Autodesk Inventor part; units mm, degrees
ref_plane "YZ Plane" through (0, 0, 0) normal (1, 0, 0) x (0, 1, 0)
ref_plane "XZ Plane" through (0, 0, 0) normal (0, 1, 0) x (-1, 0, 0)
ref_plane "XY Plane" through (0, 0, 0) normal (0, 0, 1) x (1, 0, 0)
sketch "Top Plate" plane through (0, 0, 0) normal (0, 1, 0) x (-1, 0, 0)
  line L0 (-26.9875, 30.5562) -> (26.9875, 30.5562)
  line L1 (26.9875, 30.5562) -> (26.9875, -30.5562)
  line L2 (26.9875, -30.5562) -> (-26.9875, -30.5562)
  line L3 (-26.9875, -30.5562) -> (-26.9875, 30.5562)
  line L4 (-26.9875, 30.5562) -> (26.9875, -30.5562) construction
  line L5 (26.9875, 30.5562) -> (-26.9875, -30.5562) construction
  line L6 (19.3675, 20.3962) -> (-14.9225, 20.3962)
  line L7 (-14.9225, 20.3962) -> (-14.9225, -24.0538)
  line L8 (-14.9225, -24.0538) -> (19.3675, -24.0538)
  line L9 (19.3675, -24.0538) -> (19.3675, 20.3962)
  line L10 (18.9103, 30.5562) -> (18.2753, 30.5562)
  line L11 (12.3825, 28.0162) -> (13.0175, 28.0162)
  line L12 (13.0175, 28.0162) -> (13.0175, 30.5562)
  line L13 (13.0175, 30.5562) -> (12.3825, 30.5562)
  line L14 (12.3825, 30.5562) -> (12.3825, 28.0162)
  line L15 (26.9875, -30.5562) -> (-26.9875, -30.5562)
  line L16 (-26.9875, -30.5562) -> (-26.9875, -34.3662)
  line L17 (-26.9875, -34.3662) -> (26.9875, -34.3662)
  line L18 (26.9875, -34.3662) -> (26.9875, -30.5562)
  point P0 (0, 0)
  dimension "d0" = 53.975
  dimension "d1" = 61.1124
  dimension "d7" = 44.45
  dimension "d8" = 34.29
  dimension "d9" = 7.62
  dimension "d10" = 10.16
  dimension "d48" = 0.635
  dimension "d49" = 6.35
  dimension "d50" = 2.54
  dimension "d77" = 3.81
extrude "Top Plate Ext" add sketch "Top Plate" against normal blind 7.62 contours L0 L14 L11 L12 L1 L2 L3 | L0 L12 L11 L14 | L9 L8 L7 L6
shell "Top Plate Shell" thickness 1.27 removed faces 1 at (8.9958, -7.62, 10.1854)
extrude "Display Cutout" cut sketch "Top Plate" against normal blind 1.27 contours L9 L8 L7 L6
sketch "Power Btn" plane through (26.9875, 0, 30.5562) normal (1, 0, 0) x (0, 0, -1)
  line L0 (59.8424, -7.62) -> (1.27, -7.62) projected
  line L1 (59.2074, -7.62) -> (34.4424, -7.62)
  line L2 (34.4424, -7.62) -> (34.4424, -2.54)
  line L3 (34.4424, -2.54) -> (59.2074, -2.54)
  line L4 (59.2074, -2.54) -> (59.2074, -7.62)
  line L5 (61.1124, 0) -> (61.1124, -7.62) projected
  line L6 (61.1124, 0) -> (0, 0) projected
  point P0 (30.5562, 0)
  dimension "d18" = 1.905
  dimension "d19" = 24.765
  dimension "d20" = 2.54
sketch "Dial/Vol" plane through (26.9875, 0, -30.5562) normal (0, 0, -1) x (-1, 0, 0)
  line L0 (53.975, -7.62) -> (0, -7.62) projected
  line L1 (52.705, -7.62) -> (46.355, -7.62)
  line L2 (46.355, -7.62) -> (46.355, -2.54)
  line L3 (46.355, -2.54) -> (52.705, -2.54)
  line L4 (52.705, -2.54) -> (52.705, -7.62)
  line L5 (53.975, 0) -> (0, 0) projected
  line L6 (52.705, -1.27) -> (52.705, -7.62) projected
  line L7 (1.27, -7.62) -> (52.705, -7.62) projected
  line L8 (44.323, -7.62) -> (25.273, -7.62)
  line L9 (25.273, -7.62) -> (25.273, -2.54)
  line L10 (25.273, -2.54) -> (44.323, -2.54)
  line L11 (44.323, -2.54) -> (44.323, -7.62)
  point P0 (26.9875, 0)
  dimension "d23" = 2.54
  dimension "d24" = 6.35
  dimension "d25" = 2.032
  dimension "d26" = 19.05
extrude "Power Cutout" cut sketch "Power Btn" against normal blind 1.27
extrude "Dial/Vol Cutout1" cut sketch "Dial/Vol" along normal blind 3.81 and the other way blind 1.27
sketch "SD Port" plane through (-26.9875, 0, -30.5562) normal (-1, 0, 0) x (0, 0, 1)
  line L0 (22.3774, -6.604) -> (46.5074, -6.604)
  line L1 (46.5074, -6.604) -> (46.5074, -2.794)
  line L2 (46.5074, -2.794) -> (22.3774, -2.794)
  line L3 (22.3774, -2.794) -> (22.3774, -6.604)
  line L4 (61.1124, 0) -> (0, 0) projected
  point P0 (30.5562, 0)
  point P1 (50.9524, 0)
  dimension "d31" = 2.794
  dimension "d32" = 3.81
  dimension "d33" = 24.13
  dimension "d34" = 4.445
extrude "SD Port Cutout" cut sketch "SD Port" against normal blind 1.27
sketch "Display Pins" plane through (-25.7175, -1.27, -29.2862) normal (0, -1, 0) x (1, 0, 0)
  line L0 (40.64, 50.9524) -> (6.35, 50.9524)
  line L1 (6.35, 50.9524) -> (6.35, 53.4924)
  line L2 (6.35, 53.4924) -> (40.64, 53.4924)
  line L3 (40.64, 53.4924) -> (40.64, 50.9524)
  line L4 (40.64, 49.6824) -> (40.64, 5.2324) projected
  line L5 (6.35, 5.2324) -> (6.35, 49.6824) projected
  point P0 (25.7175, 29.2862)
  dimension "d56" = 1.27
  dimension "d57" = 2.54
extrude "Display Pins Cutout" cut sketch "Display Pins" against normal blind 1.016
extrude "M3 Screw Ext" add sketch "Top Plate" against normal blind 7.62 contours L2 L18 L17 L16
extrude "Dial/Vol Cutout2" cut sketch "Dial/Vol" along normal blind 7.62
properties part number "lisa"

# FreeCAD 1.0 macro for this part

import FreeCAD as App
import Part
import Sketcher
from FreeCAD import Vector
Q = App.Units.Quantity


def faces_at(feature, points):
    """Names of the faces that lie closest to the given points."""
    faces = feature.Shape.Faces
    near = lambda p: min(range(len(faces)), key=lambda i: faces[i].distToShape(Part.Vertex(*p))[0])
    return sorted({f"Face{near(p) + 1}" for p in points})


def add_polygon(sketch, points):
    """Adds a closed chain of lines whose ends are joined by coincident constraints."""
    first, n = sketch.GeometryCount, len(points)
    for a, b in zip(points, points[1:] + points[:1]):
        sketch.addGeometry(Part.LineSegment(App.Vector(*a, 0), App.Vector(*b, 0)), False)
    for i in range(n):
        sketch.addConstraint(Sketcher.Constraint("Coincident", first + i, 2, first + (i + 1) % n, 1))

doc = App.newDocument("Part")
body = doc.addObject("PartDesign::Body", "Body")

sketch1 = body.newObject("Sketcher::SketchObject", "Sketch")
sketch1.AttachmentSupport = (doc.getObject("XZ_Plane"), [""])
sketch1.MapMode = "FlatFace"
add_polygon(sketch1, [(27, 31), (27, -31), (-27, -31), (-27, 31)])
sketch1.addConstraint(Sketcher.Constraint("Vertical", 0))
sketch1.addConstraint(Sketcher.Constraint("Horizontal", 1))
sketch1.addConstraint(Sketcher.Constraint("Vertical", 2))
sketch1.addConstraint(Sketcher.Constraint("Horizontal", 3))
sketch1.addConstraint(Sketcher.Constraint("Symmetric", 0, 2, 2, 2, -1, 1))
sketch1.addConstraint(Sketcher.Constraint("DistanceX", 1, 2, 1, 1, Q("2.125 in")))
sketch1.addConstraint(Sketcher.Constraint("DistanceY", 0, 2, 0, 1, Q("2.406 in")))
pad1 = body.newObject("PartDesign::Pad", "Pad")
pad1.Profile = sketch1
pad1.Length = Q("0.3 in")
doc.recompute()

thickness = body.newObject("PartDesign::Thickness", "Thickness")
thickness.Base = (pad1, faces_at(pad1, [(8.996, -7.62, 10.185)]))
thickness.Value = Q("0.05 in")
thickness.Reversed = True
thickness.Join = "Intersection"

sketch2 = body.newObject("Sketcher::SketchObject", "Sketch001")
sketch2.AttachmentSupport = (doc.getObject("XZ_Plane"), [""])
sketch2.MapMode = "FlatFace"
add_polygon(sketch2, [(-19, -24), (-19, 20), (15, 20), (15, -24)])
sketch2.addConstraint(Sketcher.Constraint("Vertical", 0))
sketch2.addConstraint(Sketcher.Constraint("Horizontal", 1))
sketch2.addConstraint(Sketcher.Constraint("Vertical", 2))
sketch2.addConstraint(Sketcher.Constraint("Horizontal", 3))
sketch2.addConstraint(Sketcher.Constraint("DistanceX", 1, 1, 1, 2, Q("1.35 in")))
sketch2.addConstraint(Sketcher.Constraint("DistanceY", 0, 1, 0, 2, Q("1.75 in")))
sketch2.addConstraint(Sketcher.Constraint("DistanceY", -1, 1, 0, 2, Q("0.803 in")))
sketch2.addConstraint(Sketcher.Constraint("DistanceX", 0, 2, -1, 1, Q("0.7625 in")))
pocket1 = body.newObject("PartDesign::Pocket", "Pocket")
pocket1.Profile = sketch2
pocket1.Length = Q("0.05 in")
pocket1.Reversed = True

sketch3 = body.newObject("Sketcher::SketchObject", "Sketch002")
sketch3.AttachmentSupport = (doc.getObject("YZ_Plane"), [""])
sketch3.MapMode = "FlatFace"
sketch3.AttachmentOffset = App.Placement(Vector(0, 0, 1.0625 * 25.4), App.Rotation())
add_polygon(sketch3, [(-8, -4), (-8, -29), (-3, -29), (-3, -4)])
sketch3.addConstraint(Sketcher.Constraint("Vertical", 0))
sketch3.addConstraint(Sketcher.Constraint("Horizontal", 1))
sketch3.addConstraint(Sketcher.Constraint("Vertical", 2))
sketch3.addConstraint(Sketcher.Constraint("Horizontal", 3))
sketch3.addConstraint(Sketcher.Constraint("DistanceX", 1, 2, -1, 1, Q("0.1 in")))
sketch3.addConstraint(Sketcher.Constraint("DistanceY", 0, 2, 0, 1, Q("0.975 in")))
sketch3.addConstraint(Sketcher.Constraint("DistanceX", 1, 1, 1, 2, Q("0.2 in")))
sketch3.addConstraint(Sketcher.Constraint("DistanceY", 0, 2, -1, 1, Q("1.128 in")))
pocket2 = body.newObject("PartDesign::Pocket", "Pocket001")
pocket2.Profile = sketch3
pocket2.Length = Q("0.05 in")

sketch4 = body.newObject("Sketcher::SketchObject", "Sketch003")
sketch4.AttachmentSupport = (doc.getObject("XY_Plane"), [""])
sketch4.MapMode = "FlatFace"
sketch4.AttachmentOffset = App.Placement(Vector(0, 0, -1.203 * 25.4), App.Rotation())
add_polygon(sketch4, [(2, -8), (-17, -8), (-17, -3), (2, -3)])
add_polygon(sketch4, [(-19, -8), (-26, -8), (-26, -3), (-19, -3)])
sketch4.addConstraint(Sketcher.Constraint("Horizontal", 0))
sketch4.addConstraint(Sketcher.Constraint("Vertical", 1))
sketch4.addConstraint(Sketcher.Constraint("Horizontal", 2))
sketch4.addConstraint(Sketcher.Constraint("Vertical", 3))
sketch4.addConstraint(Sketcher.Constraint("Horizontal", 4))
sketch4.addConstraint(Sketcher.Constraint("Vertical", 5))
sketch4.addConstraint(Sketcher.Constraint("Horizontal", 6))
sketch4.addConstraint(Sketcher.Constraint("Vertical", 7))
sketch4.addConstraint(Sketcher.Constraint("Horizontal", 3, 2, 4, 2))
sketch4.addConstraint(Sketcher.Constraint("Horizontal", 2, 2, 5, 2))
sketch4.addConstraint(Sketcher.Constraint("DistanceX", 0, 2, 0, 1, Q("0.75 in")))
sketch4.addConstraint(Sketcher.Constraint("DistanceX", 4, 2, 4, 1, Q("0.25 in")))
sketch4.addConstraint(Sketcher.Constraint("DistanceY", 1, 2, -1, 1, Q("0.1 in")))
sketch4.addConstraint(Sketcher.Constraint("DistanceX", 6, 2, 1, 2, Q("0.08 in")))
sketch4.addConstraint(Sketcher.Constraint("DistanceY", 1, 1, 1, 2, Q("0.2 in")))
sketch4.addConstraint(Sketcher.Constraint("DistanceX", 0, 2, -1, 1, Q("0.6825 in")))
pocket3 = body.newObject("PartDesign::Pocket", "Pocket002")
pocket3.Profile = sketch4
pocket3.Type = "TwoLengths"
pocket3.Length = Q("0.15 in")
pocket3.Length2 = Q("0.05 in")

sketch5 = body.newObject("Sketcher::SketchObject", "Sketch004")
sketch5.AttachmentSupport = (doc.getObject("YZ_Plane"), [""])
sketch5.MapMode = "FlatFace"
sketch5.AttachmentOffset = App.Placement(Vector(0, 0, -1.0625 * 25.4), App.Rotation())
add_polygon(sketch5, [(-2.8, -8.2), (-6.6, -8.2), (-6.6, 16), (-2.8, 16)])
sketch5.addConstraint(Sketcher.Constraint("Horizontal", 0))
sketch5.addConstraint(Sketcher.Constraint("Vertical", 1))
sketch5.addConstraint(Sketcher.Constraint("Horizontal", 2))
sketch5.addConstraint(Sketcher.Constraint("Vertical", 3))
sketch5.addConstraint(Sketcher.Constraint("DistanceX", 0, 2, 0, 1, Q("0.15 in")))
sketch5.addConstraint(Sketcher.Constraint("DistanceY", 1, 1, 1, 2, Q("0.95 in")))
sketch5.addConstraint(Sketcher.Constraint("DistanceX", 2, 2, -1, 1, Q("0.11 in")))
sketch5.addConstraint(Sketcher.Constraint("DistanceY", 0, 2, -1, 1, Q("0.322 in")))
pocket4 = body.newObject("PartDesign::Pocket", "Pocket003")
pocket4.Profile = sketch5
pocket4.Length = Q("0.05 in")
pocket4.Reversed = True

sketch6 = body.newObject("Sketcher::SketchObject", "Sketch005")
sketch6.AttachmentSupport = (doc.getObject("XZ_Plane"), [""])
sketch6.MapMode = "FlatFace"
sketch6.AttachmentOffset = App.Placement(Vector(0, 0, 0.05 * 25.4), App.Rotation())
add_polygon(sketch6, [(-19.4, 21.7), (14.9, 21.7), (14.9, 24.2), (-19.4, 24.2)])
sketch6.addConstraint(Sketcher.Constraint("Horizontal", 0))
sketch6.addConstraint(Sketcher.Constraint("Vertical", 1))
sketch6.addConstraint(Sketcher.Constraint("Horizontal", 2))
sketch6.addConstraint(Sketcher.Constraint("Vertical", 3))
sketch6.addConstraint(Sketcher.Constraint("DistanceY", 1, 1, 1, 2, Q("0.1 in")))
sketch6.addConstraint(Sketcher.Constraint("DistanceX", 0, 1, 0, 2, Q("1.35 in")))
sketch6.addConstraint(Sketcher.Constraint("DistanceY", -1, 1, 0, 2, Q("0.853 in")))
sketch6.addConstraint(Sketcher.Constraint("DistanceX", -1, 1, 0, 2, Q("0.5875 in")))
pocket5 = body.newObject("PartDesign::Pocket", "Pocket004")
pocket5.Profile = sketch6
pocket5.Length = Q("0.04 in")

sketch7 = body.newObject("Sketcher::SketchObject", "Sketch006")
sketch7.AttachmentSupport = (doc.getObject("XZ_Plane"), [""])
sketch7.MapMode = "FlatFace"
add_polygon(sketch7, [(-27, -30.6), (27, -30.6), (27, -34.4), (-27, -34.4)])
sketch7.addConstraint(Sketcher.Constraint("Horizontal", 0))
sketch7.addConstraint(Sketcher.Constraint("Vertical", 1))
sketch7.addConstraint(Sketcher.Constraint("Horizontal", 2))
sketch7.addConstraint(Sketcher.Constraint("Vertical", 3))
sketch7.addConstraint(Sketcher.Constraint("DistanceY", 1, 2, 1, 1, Q("0.15 in")))
sketch7.addConstraint(Sketcher.Constraint("DistanceX", 0, 1, 0, 2, Q("2.125 in")))
sketch7.addConstraint(Sketcher.Constraint("DistanceX", -1, 1, 0, 2, Q("1.0625 in")))
sketch7.addConstraint(Sketcher.Constraint("DistanceY", 0, 2, -1, 1, Q("1.203 in")))
pad2 = body.newObject("PartDesign::Pad", "Pad001")
pad2.Profile = sketch7
pad2.Length = Q("0.3 in")

sketch8 = body.newObject("Sketcher::SketchObject", "Sketch007")
sketch8.AttachmentSupport = (doc.getObject("XY_Plane"), [""])
sketch8.MapMode = "FlatFace"
sketch8.AttachmentOffset = App.Placement(Vector(0, 0, -1.203 * 25.4), App.Rotation())
add_polygon(sketch8, [(2, -8), (-17, -8), (-17, -3), (2, -3)])
add_polygon(sketch8, [(-19, -8), (-26, -8), (-26, -3), (-19, -3)])
sketch8.addConstraint(Sketcher.Constraint("Horizontal", 0))
sketch8.addConstraint(Sketcher.Constraint("Vertical", 1))
sketch8.addConstraint(Sketcher.Constraint("Horizontal", 2))
sketch8.addConstraint(Sketcher.Constraint("Vertical", 3))
sketch8.addConstraint(Sketcher.Constraint("Horizontal", 4))
sketch8.addConstraint(Sketcher.Constraint("Vertical", 5))
sketch8.addConstraint(Sketcher.Constraint("Horizontal", 6))
sketch8.addConstraint(Sketcher.Constraint("Vertical", 7))
sketch8.addConstraint(Sketcher.Constraint("Horizontal", 3, 2, 4, 2))
sketch8.addConstraint(Sketcher.Constraint("Horizontal", 2, 2, 5, 2))
sketch8.addConstraint(Sketcher.Constraint("DistanceX", 0, 2, 0, 1, Q("0.75 in")))
sketch8.addConstraint(Sketcher.Constraint("DistanceX", 4, 2, 4, 1, Q("0.25 in")))
sketch8.addConstraint(Sketcher.Constraint("DistanceY", 1, 2, -1, 1, Q("0.1 in")))
sketch8.addConstraint(Sketcher.Constraint("DistanceX", 6, 2, 1, 2, Q("0.08 in")))
sketch8.addConstraint(Sketcher.Constraint("DistanceY", 1, 1, 1, 2, Q("0.2 in")))
sketch8.addConstraint(Sketcher.Constraint("DistanceX", 0, 2, -1, 1, Q("0.6825 in")))
pocket6 = body.newObject("PartDesign::Pocket", "Pocket005")
pocket6.Profile = sketch8
pocket6.Length = Q("0.3 in")

doc.recompute()
